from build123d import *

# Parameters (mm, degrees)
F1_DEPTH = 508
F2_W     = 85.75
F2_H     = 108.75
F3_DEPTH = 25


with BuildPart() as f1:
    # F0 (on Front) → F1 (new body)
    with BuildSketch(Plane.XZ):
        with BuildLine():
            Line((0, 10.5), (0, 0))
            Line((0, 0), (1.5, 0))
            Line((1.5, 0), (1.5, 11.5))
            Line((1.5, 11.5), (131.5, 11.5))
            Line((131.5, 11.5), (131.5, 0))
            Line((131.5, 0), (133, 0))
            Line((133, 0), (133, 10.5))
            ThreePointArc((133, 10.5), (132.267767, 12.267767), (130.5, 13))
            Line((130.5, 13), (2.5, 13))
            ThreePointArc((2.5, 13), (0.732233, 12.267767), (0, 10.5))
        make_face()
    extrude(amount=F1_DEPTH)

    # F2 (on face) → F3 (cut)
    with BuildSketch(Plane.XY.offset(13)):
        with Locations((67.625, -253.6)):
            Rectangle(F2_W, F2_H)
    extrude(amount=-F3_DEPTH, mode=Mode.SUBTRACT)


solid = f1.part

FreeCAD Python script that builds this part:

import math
import FreeCAD as App
import Part
import Sketcher

V = App.Vector


def add_polygon(sketch, points):
    """Adds a closed chain of lines whose ends are joined by coincident constraints."""
    first, n = sketch.GeometryCount, len(points)
    for a, b in zip(points, points[1:] + points[:1]):
        sketch.addGeometry(Part.LineSegment(App.Vector(*a, 0), App.Vector(*b, 0)), False)
    for i in range(n):
        sketch.addConstraint(Sketcher.Constraint("Coincident", first + i, 2, first + (i + 1) % n, 1))

doc = App.newDocument("Part")
body = doc.addObject("PartDesign::Body", "Body")

sketch1 = body.newObject("Sketcher::SketchObject", "Sketch")
sketch1.AttachmentSupport = (doc.getObject("XZ_Plane"), [""])
sketch1.MapMode = "FlatFace"
sketch1.addGeometry(Part.LineSegment(V(0, 10.5, 0), V(0, 0, 0)), False)
sketch1.addGeometry(Part.LineSegment(V(0, 0, 0), V(1.5, 0, 0)), False)
sketch1.addGeometry(Part.LineSegment(V(1.5, 0, 0), V(1.5, 11.5, 0)), False)
sketch1.addGeometry(Part.LineSegment(V(1.5, 11.5, 0), V(131.5, 11.5, 0)), False)
sketch1.addGeometry(Part.LineSegment(V(131.5, 11.5, 0), V(131.5, 0, 0)), False)
sketch1.addGeometry(Part.LineSegment(V(131.5, 0, 0), V(133, 0, 0)), False)
sketch1.addGeometry(Part.LineSegment(V(133, 0, 0), V(133, 10.5, 0)), False)
sketch1.addGeometry(Part.ArcOfCircle(Part.Circle(V(130.5, 10.5, 0), V(0, 0, 1), 2.5), math.radians(0), math.radians(90)), False)
sketch1.addGeometry(Part.LineSegment(V(130.5, 13, 0), V(2.5, 13, 0)), False)
sketch1.addGeometry(Part.ArcOfCircle(Part.Circle(V(2.5, 10.5, 0), V(0, 0, 1), 2.5), math.radians(90), math.radians(180)), False)
sketch1.addConstraint(Sketcher.Constraint("Coincident", 0, 2, 1, 1))
sketch1.addConstraint(Sketcher.Constraint("Coincident", 1, 2, 2, 1))
sketch1.addConstraint(Sketcher.Constraint("Coincident", 2, 2, 3, 1))
sketch1.addConstraint(Sketcher.Constraint("Coincident", 3, 2, 4, 1))
sketch1.addConstraint(Sketcher.Constraint("Coincident", 4, 2, 5, 1))
sketch1.addConstraint(Sketcher.Constraint("Coincident", 5, 2, 6, 1))
sketch1.addConstraint(Sketcher.Constraint("Tangent", 6, 2, 7, 1))
sketch1.addConstraint(Sketcher.Constraint("Tangent", 7, 2, 8, 1))
sketch1.addConstraint(Sketcher.Constraint("Tangent", 8, 2, 9, 1))
sketch1.addConstraint(Sketcher.Constraint("Tangent", 9, 2, 0, 1))
sketch1.addConstraint(Sketcher.Constraint("Vertical", 0))
sketch1.addConstraint(Sketcher.Constraint("Horizontal", 1))
sketch1.addConstraint(Sketcher.Constraint("Vertical", 2))
sketch1.addConstraint(Sketcher.Constraint("Horizontal", 3))
sketch1.addConstraint(Sketcher.Constraint("Vertical", 4))
sketch1.addConstraint(Sketcher.Constraint("Horizontal", 5))
sketch1.addConstraint(Sketcher.Constraint("Vertical", 6))
sketch1.addConstraint(Sketcher.Constraint("Horizontal", 8))
sketch1.addConstraint(Sketcher.Constraint("Coincident", 0, 2, -1, 1))
sketch1.addConstraint(Sketcher.Constraint("Equal", 7, 9))
sketch1.addConstraint(Sketcher.Constraint("PointOnObject", 4, 2, -1))
sketch1.addConstraint(Sketcher.Constraint("Equal", 1, 5))
sketch1.addConstraint(Sketcher.Constraint("Radius", 7, 2.5))
sketch1.addConstraint(Sketcher.Constraint("DistanceX", 3, 1, 3, 2, 130.0))
sketch1.addConstraint(Sketcher.Constraint("DistanceX", 8, 2, 8, 1, 128.0))
sketch1.addConstraint(Sketcher.Constraint("DistanceY", 0, 2, 0, 1, 10.5))
sketch1.addConstraint(Sketcher.Constraint("DistanceY", 2, 1, 2, 2, 11.5))
pad1 = body.newObject("PartDesign::Pad", "Pad")
pad1.Profile = sketch1
pad1.Length = 508

sketch2 = body.newObject("Sketcher::SketchObject", "Sketch001")
sketch2.AttachmentSupport = (doc.getObject("XY_Plane"), [""])
sketch2.MapMode = "FlatFace"
sketch2.AttachmentOffset = App.Placement(V(0, 0, 13), App.Rotation())
add_polygon(sketch2, [(25, -199), (25, -308), (110, -308), (110, -199)])
sketch2.addConstraint(Sketcher.Constraint("Vertical", 0))
sketch2.addConstraint(Sketcher.Constraint("Horizontal", 1))
sketch2.addConstraint(Sketcher.Constraint("Vertical", 2))
sketch2.addConstraint(Sketcher.Constraint("Horizontal", 3))
sketch2.addConstraint(Sketcher.Constraint("DistanceX", 1, 1, 1, 2, 85.75))
sketch2.addConstraint(Sketcher.Constraint("DistanceY", 0, 2, 0, 1, 108.75))
sketch2.addConstraint(Sketcher.Constraint("DistanceX", -1, 1, 1, 2, 110.5))
sketch2.addConstraint(Sketcher.Constraint("DistanceY", 0, 2, -1, 1, 307.975))
pocket1 = body.newObject("PartDesign::Pocket", "Pocket")
pocket1.Profile = sketch2
pocket1.Length = 25

doc.recompute()
